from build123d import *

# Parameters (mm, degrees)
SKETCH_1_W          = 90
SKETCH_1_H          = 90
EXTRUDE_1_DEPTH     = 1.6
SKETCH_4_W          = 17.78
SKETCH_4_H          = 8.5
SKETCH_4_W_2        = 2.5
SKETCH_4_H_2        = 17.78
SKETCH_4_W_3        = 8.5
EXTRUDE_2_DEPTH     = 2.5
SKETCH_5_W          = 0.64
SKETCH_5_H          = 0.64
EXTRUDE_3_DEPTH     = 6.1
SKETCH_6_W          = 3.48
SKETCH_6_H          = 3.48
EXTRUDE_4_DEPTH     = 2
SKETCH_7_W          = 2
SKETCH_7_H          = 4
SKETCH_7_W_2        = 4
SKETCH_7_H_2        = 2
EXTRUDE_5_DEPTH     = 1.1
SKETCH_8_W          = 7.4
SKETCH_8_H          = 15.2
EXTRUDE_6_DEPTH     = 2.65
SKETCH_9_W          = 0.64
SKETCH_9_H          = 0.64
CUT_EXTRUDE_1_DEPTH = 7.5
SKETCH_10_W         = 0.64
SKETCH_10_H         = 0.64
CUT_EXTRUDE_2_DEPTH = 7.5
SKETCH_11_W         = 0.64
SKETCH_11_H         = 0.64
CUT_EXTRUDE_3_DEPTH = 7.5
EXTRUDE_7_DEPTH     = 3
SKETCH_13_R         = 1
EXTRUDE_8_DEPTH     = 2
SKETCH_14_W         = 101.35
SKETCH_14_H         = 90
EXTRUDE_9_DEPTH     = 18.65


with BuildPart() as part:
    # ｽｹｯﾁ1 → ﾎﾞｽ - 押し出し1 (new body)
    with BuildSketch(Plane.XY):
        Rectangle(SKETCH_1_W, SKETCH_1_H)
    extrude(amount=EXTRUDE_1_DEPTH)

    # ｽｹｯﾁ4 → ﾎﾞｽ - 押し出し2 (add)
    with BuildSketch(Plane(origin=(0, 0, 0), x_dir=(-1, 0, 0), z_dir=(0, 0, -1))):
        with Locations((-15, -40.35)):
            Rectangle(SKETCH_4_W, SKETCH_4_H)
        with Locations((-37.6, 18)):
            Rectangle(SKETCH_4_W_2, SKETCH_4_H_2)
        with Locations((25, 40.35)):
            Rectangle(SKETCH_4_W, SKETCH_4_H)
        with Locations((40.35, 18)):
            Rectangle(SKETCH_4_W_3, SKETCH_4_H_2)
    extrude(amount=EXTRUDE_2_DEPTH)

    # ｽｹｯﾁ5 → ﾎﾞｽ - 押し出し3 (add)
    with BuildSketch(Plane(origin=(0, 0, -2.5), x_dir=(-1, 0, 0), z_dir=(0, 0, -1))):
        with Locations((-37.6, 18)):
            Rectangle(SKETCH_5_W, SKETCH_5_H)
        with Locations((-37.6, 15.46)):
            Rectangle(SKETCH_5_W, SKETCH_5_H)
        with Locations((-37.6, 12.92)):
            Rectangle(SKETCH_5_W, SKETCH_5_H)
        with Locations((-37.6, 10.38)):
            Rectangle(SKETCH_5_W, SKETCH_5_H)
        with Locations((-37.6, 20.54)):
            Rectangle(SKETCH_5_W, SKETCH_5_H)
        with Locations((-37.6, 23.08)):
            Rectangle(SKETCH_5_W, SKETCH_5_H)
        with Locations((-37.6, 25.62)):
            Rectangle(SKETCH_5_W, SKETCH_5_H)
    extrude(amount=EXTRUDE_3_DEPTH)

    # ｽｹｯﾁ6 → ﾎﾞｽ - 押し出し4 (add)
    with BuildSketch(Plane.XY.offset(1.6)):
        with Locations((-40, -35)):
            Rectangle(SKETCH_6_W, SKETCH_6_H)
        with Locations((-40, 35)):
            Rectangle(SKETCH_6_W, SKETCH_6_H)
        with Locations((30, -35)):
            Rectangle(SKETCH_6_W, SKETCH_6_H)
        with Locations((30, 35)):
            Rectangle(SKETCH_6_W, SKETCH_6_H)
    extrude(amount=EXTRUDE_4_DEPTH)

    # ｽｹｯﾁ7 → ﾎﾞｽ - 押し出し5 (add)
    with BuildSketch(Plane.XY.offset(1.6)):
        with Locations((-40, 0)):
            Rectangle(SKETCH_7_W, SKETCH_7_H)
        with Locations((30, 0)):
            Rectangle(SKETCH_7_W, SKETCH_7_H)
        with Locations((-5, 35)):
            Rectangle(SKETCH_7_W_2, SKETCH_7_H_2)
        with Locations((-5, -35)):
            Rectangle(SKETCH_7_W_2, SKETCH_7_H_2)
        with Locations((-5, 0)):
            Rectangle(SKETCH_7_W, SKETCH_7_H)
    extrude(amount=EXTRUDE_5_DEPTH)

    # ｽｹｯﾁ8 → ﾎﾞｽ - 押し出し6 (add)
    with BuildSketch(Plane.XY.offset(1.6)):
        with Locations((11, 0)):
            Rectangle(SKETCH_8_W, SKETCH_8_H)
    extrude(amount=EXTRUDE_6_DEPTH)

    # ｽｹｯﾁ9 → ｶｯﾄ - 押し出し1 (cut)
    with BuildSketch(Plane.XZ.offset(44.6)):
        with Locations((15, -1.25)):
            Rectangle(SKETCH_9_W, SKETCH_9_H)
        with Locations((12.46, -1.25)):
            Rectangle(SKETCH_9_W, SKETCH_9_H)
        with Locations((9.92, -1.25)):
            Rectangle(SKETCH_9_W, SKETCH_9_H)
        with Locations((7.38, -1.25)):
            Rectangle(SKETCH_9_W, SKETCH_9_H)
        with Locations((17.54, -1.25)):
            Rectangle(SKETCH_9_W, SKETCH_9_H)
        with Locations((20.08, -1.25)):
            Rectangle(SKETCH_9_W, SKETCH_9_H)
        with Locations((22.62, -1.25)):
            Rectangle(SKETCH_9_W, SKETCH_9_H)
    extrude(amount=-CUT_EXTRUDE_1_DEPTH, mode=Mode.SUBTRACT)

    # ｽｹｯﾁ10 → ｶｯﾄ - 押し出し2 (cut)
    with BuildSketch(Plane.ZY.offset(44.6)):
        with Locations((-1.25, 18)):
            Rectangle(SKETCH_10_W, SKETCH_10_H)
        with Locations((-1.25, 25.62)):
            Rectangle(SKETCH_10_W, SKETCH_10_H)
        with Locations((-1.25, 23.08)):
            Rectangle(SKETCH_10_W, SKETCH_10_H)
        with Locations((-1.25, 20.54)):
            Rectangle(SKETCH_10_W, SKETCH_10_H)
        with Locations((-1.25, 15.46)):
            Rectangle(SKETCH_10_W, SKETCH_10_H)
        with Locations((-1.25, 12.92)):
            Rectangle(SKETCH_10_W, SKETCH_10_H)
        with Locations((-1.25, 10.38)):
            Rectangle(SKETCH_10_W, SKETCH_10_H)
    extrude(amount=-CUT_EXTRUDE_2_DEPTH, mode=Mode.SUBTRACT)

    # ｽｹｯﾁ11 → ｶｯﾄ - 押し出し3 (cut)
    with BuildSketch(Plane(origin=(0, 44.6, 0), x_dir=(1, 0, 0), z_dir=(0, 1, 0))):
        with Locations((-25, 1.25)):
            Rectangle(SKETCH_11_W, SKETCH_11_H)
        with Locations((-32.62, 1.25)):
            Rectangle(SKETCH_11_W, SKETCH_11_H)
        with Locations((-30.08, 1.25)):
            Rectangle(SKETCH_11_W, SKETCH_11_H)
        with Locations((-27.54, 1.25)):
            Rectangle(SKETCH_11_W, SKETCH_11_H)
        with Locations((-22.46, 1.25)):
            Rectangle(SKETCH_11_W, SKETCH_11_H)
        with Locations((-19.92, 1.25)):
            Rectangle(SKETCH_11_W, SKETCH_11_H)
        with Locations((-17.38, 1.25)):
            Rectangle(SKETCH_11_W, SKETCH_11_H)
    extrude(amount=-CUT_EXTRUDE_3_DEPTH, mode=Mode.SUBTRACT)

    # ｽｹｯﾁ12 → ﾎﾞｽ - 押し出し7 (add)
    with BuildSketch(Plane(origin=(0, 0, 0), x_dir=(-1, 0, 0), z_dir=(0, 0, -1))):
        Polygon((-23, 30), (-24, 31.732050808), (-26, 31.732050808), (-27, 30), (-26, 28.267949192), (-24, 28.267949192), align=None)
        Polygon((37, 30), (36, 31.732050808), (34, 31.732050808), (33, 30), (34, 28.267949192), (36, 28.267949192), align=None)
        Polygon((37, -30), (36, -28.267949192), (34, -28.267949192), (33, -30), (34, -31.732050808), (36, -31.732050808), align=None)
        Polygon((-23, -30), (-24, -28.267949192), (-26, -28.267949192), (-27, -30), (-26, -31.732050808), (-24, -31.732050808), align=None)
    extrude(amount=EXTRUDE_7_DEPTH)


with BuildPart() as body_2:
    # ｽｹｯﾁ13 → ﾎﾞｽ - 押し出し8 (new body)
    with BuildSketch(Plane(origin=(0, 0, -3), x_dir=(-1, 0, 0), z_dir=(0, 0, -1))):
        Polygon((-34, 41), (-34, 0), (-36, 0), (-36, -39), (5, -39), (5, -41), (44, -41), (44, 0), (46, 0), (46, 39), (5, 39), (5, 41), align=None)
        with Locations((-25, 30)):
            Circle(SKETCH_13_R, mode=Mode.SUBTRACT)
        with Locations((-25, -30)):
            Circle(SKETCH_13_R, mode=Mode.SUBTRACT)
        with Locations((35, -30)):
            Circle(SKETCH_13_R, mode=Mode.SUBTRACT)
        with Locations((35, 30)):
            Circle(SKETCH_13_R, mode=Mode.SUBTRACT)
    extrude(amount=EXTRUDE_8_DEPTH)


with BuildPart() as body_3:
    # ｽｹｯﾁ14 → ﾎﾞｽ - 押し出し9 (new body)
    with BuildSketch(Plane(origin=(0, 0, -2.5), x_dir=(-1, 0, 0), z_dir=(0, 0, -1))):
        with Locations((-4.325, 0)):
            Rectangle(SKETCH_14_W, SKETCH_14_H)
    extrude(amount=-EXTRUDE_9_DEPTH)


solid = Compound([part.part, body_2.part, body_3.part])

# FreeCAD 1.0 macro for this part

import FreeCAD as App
import Part
import Sketcher
from FreeCAD import Vector
Q = App.Units.Quantity


def add_polygon(sketch, points):
    """Adds a closed chain of lines whose ends are joined by coincident constraints."""
    first, n = sketch.GeometryCount, len(points)
    for a, b in zip(points, points[1:] + points[:1]):
        sketch.addGeometry(Part.LineSegment(App.Vector(*a, 0), App.Vector(*b, 0)), False)
    for i in range(n):
        sketch.addConstraint(Sketcher.Constraint("Coincident", first + i, 2, first + (i + 1) % n, 1))

doc = App.newDocument("Part")
body = doc.addObject("PartDesign::Body", "Body")

# Sketch on XY plane
sketch1 = body.newObject("Sketcher::SketchObject", "Sketch")
sketch1.AttachmentSupport = (doc.getObject("XY_Plane"), [""])
sketch1.MapMode = "FlatFace"
add_polygon(sketch1, [(-45, 45), (-45, -45), (45, -45), (45, 45)])  # lines 0-3
sketch1.addConstraint(Sketcher.Constraint("Vertical", 0))
sketch1.addConstraint(Sketcher.Constraint("Horizontal", 1))
sketch1.addConstraint(Sketcher.Constraint("Vertical", 2))
sketch1.addConstraint(Sketcher.Constraint("Horizontal", 3))
sketch1.addConstraint(Sketcher.Constraint("Symmetric", 0, 2, 2, 2, -1, 1))
sketch1.addConstraint(Sketcher.Constraint("Equal", 3, 0))
sketch1.addConstraint(Sketcher.Constraint("DistanceX", 1, 1, 1, 2, 90.0))
pad1 = body.newObject("PartDesign::Pad", "Pad")
pad1.Profile = sketch1
pad1.Length = 1.6

# Sketch on XY plane
sketch2 = body.newObject("Sketcher::SketchObject", "Sketch001")
sketch2.AttachmentSupport = (doc.getObject("XY_Plane"), [""])
sketch2.MapMode = "FlatFace"
add_polygon(sketch2, [(23.9, -36.1), (23.9, -44.6), (6.1, -44.6), (6.1, -36.1)])  # lines 0-3
add_polygon(sketch2, [(38.9, 26.9), (38.9, 9.1), (36.4, 9.1), (36.4, 26.9)])  # lines 4-7
add_polygon(sketch2, [(-16.1, 44.6), (-16.1, 36.1), (-33.9, 36.1), (-33.9, 44.6)])  # lines 8-11
add_polygon(sketch2, [(-36.1, 26.9), (-36.1, 9.1), (-44.6, 9.1), (-44.6, 26.9)])  # lines 12-15
sketch2.addConstraint(Sketcher.Constraint("Vertical", 0))
sketch2.addConstraint(Sketcher.Constraint("Horizontal", 1))
sketch2.addConstraint(Sketcher.Constraint("Vertical", 2))
sketch2.addConstraint(Sketcher.Constraint("Horizontal", 3))
sketch2.addConstraint(Sketcher.Constraint("Vertical", 4))
sketch2.addConstraint(Sketcher.Constraint("Horizontal", 5))
sketch2.addConstraint(Sketcher.Constraint("Vertical", 6))
sketch2.addConstraint(Sketcher.Constraint("Horizontal", 7))
sketch2.addConstraint(Sketcher.Constraint("Vertical", 8))
sketch2.addConstraint(Sketcher.Constraint("Horizontal", 9))
sketch2.addConstraint(Sketcher.Constraint("Vertical", 10))
sketch2.addConstraint(Sketcher.Constraint("Horizontal", 11))
sketch2.addConstraint(Sketcher.Constraint("Vertical", 12))
sketch2.addConstraint(Sketcher.Constraint("Horizontal", 13))
sketch2.addConstraint(Sketcher.Constraint("Vertical", 14))
sketch2.addConstraint(Sketcher.Constraint("Horizontal", 15))
sketch2.addConstraint(Sketcher.Constraint("Horizontal", 5, 2, 12, 2))
sketch2.addConstraint(Sketcher.Constraint("Horizontal", 7, 2, 14, 2))
sketch2.addConstraint(Sketcher.Constraint("Equal", 3, 9))
sketch2.addConstraint(Sketcher.Constraint("Equal", 15, 0))
sketch2.addConstraint(Sketcher.Constraint("Equal", 11, 4))
sketch2.addConstraint(Sketcher.Constraint("Equal", 2, 8))
sketch2.addConstraint(Sketcher.Constraint("DistanceX", 5, 2, 5, 1, 2.5))
sketch2.addConstraint(Sketcher.Constraint("DistanceX", 13, 2, 13, 1, 8.5))
sketch2.addConstraint(Sketcher.Constraint("DistanceX", 1, 2, 1, 1, 17.78))
sketch2.addConstraint(Sketcher.Constraint("DistanceY", 0, 2, -1, 1, 44.6))
sketch2.addConstraint(Sketcher.Constraint("DistanceY", -1, 1, 8, 2, 36.1))
sketch2.addConstraint(Sketcher.Constraint("DistanceX", 12, 2, -1, 1, 36.1))
sketch2.addConstraint(Sketcher.Constraint("DistanceX", -1, 1, 0, 2, 23.89))
sketch2.addConstraint(Sketcher.Constraint("DistanceX", -1, 1, 4, 2, 38.85))
sketch2.addConstraint(Sketcher.Constraint("DistanceY", -1, 1, 4, 2, 9.11))
sketch2.addConstraint(Sketcher.Constraint("DistanceX", 8, 2, -1, 1, 16.11))
pad2 = body.newObject("PartDesign::Pad", "Pad001")
pad2.Profile = sketch2
pad2.Length = 2.5
pad2.Reversed = True

# Sketch on XY plane
sketch3 = body.newObject("Sketcher::SketchObject", "Sketch002")
sketch3.AttachmentSupport = (doc.getObject("XY_Plane"), [""])
sketch3.MapMode = "FlatFace"
sketch3.AttachmentOffset = App.Placement(Vector(0, 0, -2.5), App.Rotation())
add_polygon(sketch3, [(37.9, 18.3), (37.9, 17.7), (37.3, 17.7), (37.3, 18.3)])  # lines 0-3
add_polygon(sketch3, [(37.9, 15.8), (37.9, 15.1), (37.3, 15.1), (37.3, 15.8)])  # lines 4-7
add_polygon(sketch3, [(37.9, 13.2), (37.9, 12.6), (37.3, 12.6), (37.3, 13.2)])  # lines 8-11
add_polygon(sketch3, [(37.9, 10.7), (37.9, 10.1), (37.3, 10.1), (37.3, 10.7)])  # lines 12-15
add_polygon(sketch3, [(37.9, 20.9), (37.9, 20.2), (37.3, 20.2), (37.3, 20.9)])  # lines 16-19
add_polygon(sketch3, [(37.9, 23.4), (37.9, 22.8), (37.3, 22.8), (37.3, 23.4)])  # lines 20-23
add_polygon(sketch3, [(37.9, 25.9), (37.9, 25.3), (37.3, 25.3), (37.3, 25.9)])  # lines 24-27
sketch3.addConstraint(Sketcher.Constraint("Vertical", 0))
sketch3.addConstraint(Sketcher.Constraint("Horizontal", 1))
sketch3.addConstraint(Sketcher.Constraint("Vertical", 2))
sketch3.addConstraint(Sketcher.Constraint("Horizontal", 3))
sketch3.addConstraint(Sketcher.Constraint("Vertical", 4))
sketch3.addConstraint(Sketcher.Constraint("Horizontal", 5))
sketch3.addConstraint(Sketcher.Constraint("Vertical", 6))
sketch3.addConstraint(Sketcher.Constraint("Horizontal", 7))
sketch3.addConstraint(Sketcher.Constraint("Vertical", 8))
sketch3.addConstraint(Sketcher.Constraint("Horizontal", 9))
sketch3.addConstraint(Sketcher.Constraint("Vertical", 10))
sketch3.addConstraint(Sketcher.Constraint("Horizontal", 11))
sketch3.addConstraint(Sketcher.Constraint("Vertical", 12))
sketch3.addConstraint(Sketcher.Constraint("Horizontal", 13))
sketch3.addConstraint(Sketcher.Constraint("Vertical", 14))
sketch3.addConstraint(Sketcher.Constraint("Horizontal", 15))
sketch3.addConstraint(Sketcher.Constraint("Vertical", 16))
sketch3.addConstraint(Sketcher.Constraint("Horizontal", 17))
sketch3.addConstraint(Sketcher.Constraint("Vertical", 18))
sketch3.addConstraint(Sketcher.Constraint("Horizontal", 19))
sketch3.addConstraint(Sketcher.Constraint("Vertical", 20))
sketch3.addConstraint(Sketcher.Constraint("Horizontal", 21))
sketch3.addConstraint(Sketcher.Constraint("Vertical", 22))
sketch3.addConstraint(Sketcher.Constraint("Horizontal", 23))
sketch3.addConstraint(Sketcher.Constraint("Vertical", 24))
sketch3.addConstraint(Sketcher.Constraint("Horizontal", 25))
sketch3.addConstraint(Sketcher.Constraint("Vertical", 26))
sketch3.addConstraint(Sketcher.Constraint("Horizontal", 27))
sketch3.addConstraint(Sketcher.Constraint("Vertical", 3, 2, 4, 2))
sketch3.addConstraint(Sketcher.Constraint("Vertical", 2, 2, 5, 2))
sketch3.addConstraint(Sketcher.Constraint("Vertical", 7, 2, 8, 2))
sketch3.addConstraint(Sketcher.Constraint("Vertical", 6, 2, 9, 2))
sketch3.addConstraint(Sketcher.Constraint("Vertical", 11, 2, 12, 2))
sketch3.addConstraint(Sketcher.Constraint("Vertical", 10, 2, 13, 2))
sketch3.addConstraint(Sketcher.Constraint("Vertical", 15, 2, 16, 2))
sketch3.addConstraint(Sketcher.Constraint("Vertical", 14, 2, 17, 2))
sketch3.addConstraint(Sketcher.Constraint("Vertical", 19, 2, 20, 2))
sketch3.addConstraint(Sketcher.Constraint("Vertical", 18, 2, 21, 2))
sketch3.addConstraint(Sketcher.Constraint("Vertical", 23, 2, 24, 2))
sketch3.addConstraint(Sketcher.Constraint("Vertical", 22, 2, 25, 2))
sketch3.addConstraint(Sketcher.Constraint("Equal", 27, 0))
sketch3.addConstraint(Sketcher.Constraint("Equal", 2, 4))
sketch3.addConstraint(Sketcher.Constraint("Equal", 6, 8))
sketch3.addConstraint(Sketcher.Constraint("Equal", 10, 12))
sketch3.addConstraint(Sketcher.Constraint("Equal", 14, 16))
sketch3.addConstraint(Sketcher.Constraint("Equal", 18, 20))
sketch3.addConstraint(Sketcher.Constraint("Equal", 22, 24))
sketch3.addConstraint(Sketcher.Constraint("DistanceX", 1, 2, 1, 1, 0.64))
sketch3.addConstraint(Sketcher.Constraint("DistanceY", -1, 1, 8, 2, 12.6))
sketch3.addConstraint(Sketcher.Constraint("DistanceY", -1, 1, 14, 2, 10.7))
sketch3.addConstraint(Sketcher.Constraint("DistanceY", -1, 1, 22, 2, 23.4))
sketch3.addConstraint(Sketcher.Constraint("DistanceY", -1, 1, 24, 2, 25.3))
sketch3.addConstraint(Sketcher.Constraint("DistanceY", 6, 2, 1, 2, 1.9))
sketch3.addConstraint(Sketcher.Constraint("DistanceY", 10, 2, 5, 2, 1.9))
sketch3.addConstraint(Sketcher.Constraint("DistanceY", 3, 2, 16, 2, 1.9))
sketch3.addConstraint(Sketcher.Constraint("DistanceX", -1, 1, 0, 2, 37.92))
pad3 = body.newObject("PartDesign::Pad", "Pad002")
pad3.Profile = sketch3
pad3.Length = 6.1
pad3.Reversed = True

# Sketch on XY plane
sketch4 = body.newObject("Sketcher::SketchObject", "Sketch003")
sketch4.AttachmentSupport = (doc.getObject("XY_Plane"), [""])
sketch4.MapMode = "FlatFace"
sketch4.AttachmentOffset = App.Placement(Vector(0, 0, 1.6), App.Rotation())
add_polygon(sketch4, [(-41.7, -33.3), (-41.7, -36.7), (-38.3, -36.7), (-38.3, -33.3)])  # lines 0-3
add_polygon(sketch4, [(-41.7, 36.7), (-41.7, 33.3), (-38.3, 33.3), (-38.3, 36.7)])  # lines 4-7
add_polygon(sketch4, [(28.3, -33.3), (28.3, -36.7), (31.7, -36.7), (31.7, -33.3)])  # lines 8-11
add_polygon(sketch4, [(28.3, 36.7), (28.3, 33.3), (31.7, 33.3), (31.7, 36.7)])  # lines 12-15
sketch4.addConstraint(Sketcher.Constraint("Vertical", 0))
sketch4.addConstraint(Sketcher.Constraint("Horizontal", 1))
sketch4.addConstraint(Sketcher.Constraint("Vertical", 2))
sketch4.addConstraint(Sketcher.Constraint("Horizontal", 3))
sketch4.addConstraint(Sketcher.Constraint("Vertical", 4))
sketch4.addConstraint(Sketcher.Constraint("Horizontal", 5))
sketch4.addConstraint(Sketcher.Constraint("Vertical", 6))
sketch4.addConstraint(Sketcher.Constraint("Horizontal", 7))
sketch4.addConstraint(Sketcher.Constraint("Vertical", 8))
sketch4.addConstraint(Sketcher.Constraint("Horizontal", 9))
sketch4.addConstraint(Sketcher.Constraint("Vertical", 10))
sketch4.addConstraint(Sketcher.Constraint("Horizontal", 11))
sketch4.addConstraint(Sketcher.Constraint("Vertical", 12))
sketch4.addConstraint(Sketcher.Constraint("Horizontal", 13))
sketch4.addConstraint(Sketcher.Constraint("Vertical", 14))
sketch4.addConstraint(Sketcher.Constraint("Horizontal", 15))
sketch4.addConstraint(Sketcher.Constraint("Symmetric", 3, 2, 4, 2, -1))
sketch4.addConstraint(Sketcher.Constraint("Symmetric", 1, 2, 6, 2, -1))
sketch4.addConstraint(Sketcher.Constraint("Symmetric", 11, 2, 12, 2, -1))
sketch4.addConstraint(Sketcher.Constraint("Symmetric", 9, 2, 14, 2, -1))
sketch4.addConstraint(Sketcher.Constraint("Horizontal", 1, 2, 8, 2))
sketch4.addConstraint(Sketcher.Constraint("Horizontal", 3, 2, 10, 2))
sketch4.addConstraint(Sketcher.Constraint("Equal", 7, 9))
sketch4.addConstraint(Sketcher.Constraint("Equal", 15, 0))
sketch4.addConstraint(Sketcher.Constraint("DistanceY", 0, 2, 4, 2, 70.0))
sketch4.addConstraint(Sketcher.Constraint("DistanceX", 0, 2, 8, 2, 70.0))
sketch4.addConstraint(Sketcher.Constraint("DistanceX", 1, 1, 1, 2, 3.48))
sketch4.addConstraint(Sketcher.Constraint("DistanceX", 0, 2, -1, 1, 41.74))
pad4 = body.newObject("PartDesign::Pad", "Pad003")
pad4.Profile = sketch4
pad4.Length = 2

# Sketch on XY plane
sketch5 = body.newObject("Sketcher::SketchObject", "Sketch004")
sketch5.AttachmentSupport = (doc.getObject("XY_Plane"), [""])
sketch5.MapMode = "FlatFace"
sketch5.AttachmentOffset = App.Placement(Vector(0, 0, 1.6), App.Rotation())
add_polygon(sketch5, [(-41, 2), (-41, -2), (-39, -2), (-39, 2)])  # lines 0-3
add_polygon(sketch5, [(29, 2), (29, -2), (31, -2), (31, 2)])  # lines 4-7
add_polygon(sketch5, [(-7, 36), (-7, 34), (-3, 34), (-3, 36)])  # lines 8-11
add_polygon(sketch5, [(-7, -34), (-7, -36), (-3, -36), (-3, -34)])  # lines 12-15
add_polygon(sketch5, [(-6, 2), (-6, -2), (-4, -2), (-4, 2)])  # lines 16-19
sketch5.addConstraint(Sketcher.Constraint("Vertical", 0))
sketch5.addConstraint(Sketcher.Constraint("Horizontal", 1))
sketch5.addConstraint(Sketcher.Constraint("Vertical", 2))
sketch5.addConstraint(Sketcher.Constraint("Horizontal", 3))
sketch5.addConstraint(Sketcher.Constraint("Vertical", 4))
sketch5.addConstraint(Sketcher.Constraint("Horizontal", 5))
sketch5.addConstraint(Sketcher.Constraint("Vertical", 6))
sketch5.addConstraint(Sketcher.Constraint("Horizontal", 7))
sketch5.addConstraint(Sketcher.Constraint("Vertical", 8))
sketch5.addConstraint(Sketcher.Constraint("Horizontal", 9))
sketch5.addConstraint(Sketcher.Constraint("Vertical", 10))
sketch5.addConstraint(Sketcher.Constraint("Horizontal", 11))
sketch5.addConstraint(Sketcher.Constraint("Vertical", 12))
sketch5.addConstraint(Sketcher.Constraint("Horizontal", 13))
sketch5.addConstraint(Sketcher.Constraint("Vertical", 14))
sketch5.addConstraint(Sketcher.Constraint("Horizontal", 15))
sketch5.addConstraint(Sketcher.Constraint("Vertical", 16))
sketch5.addConstraint(Sketcher.Constraint("Horizontal", 17))
sketch5.addConstraint(Sketcher.Constraint("Vertical", 18))
sketch5.addConstraint(Sketcher.Constraint("Horizontal", 19))
sketch5.addConstraint(Sketcher.Constraint("Symmetric", 11, 2, 12, 2, -1))
sketch5.addConstraint(Sketcher.Constraint("Symmetric", 9, 2, 14, 2, -1))
sketch5.addConstraint(Sketcher.Constraint("Horizontal", 1, 2, 4, 2))
sketch5.addConstraint(Sketcher.Constraint("Horizontal", 3, 2, 6, 2))
sketch5.addConstraint(Sketcher.Constraint("Horizontal", 5, 2, 16, 2))
sketch5.addConstraint(Sketcher.Constraint("Horizontal", 7, 2, 18, 2))
sketch5.addConstraint(Sketcher.Constraint("Equal", 3, 5))
sketch5.addConstraint(Sketcher.Constraint("Equal", 7, 17))
sketch5.addConstraint(Sketcher.Constraint("Equal", 15, 0))
sketch5.addConstraint(Sketcher.Constraint("Equal", 19, 8))
sketch5.addConstraint(Sketcher.Constraint("DistanceX", 1, 1, 1, 2, 2.0))
sketch5.addConstraint(Sketcher.Constraint("DistanceX", 9, 1, 9, 2, 4.0))
sketch5.addConstraint(Sketcher.Constraint("DistanceX", 0, 2, -1, 1, 41.0))
sketch5.addConstraint(Sketcher.Constraint("DistanceY", 0, 2, -1, 1, 2.0))
sketch5.addConstraint(Sketcher.Constraint("DistanceX", -1, 1, 4, 2, 29.0))
sketch5.addConstraint(Sketcher.Constraint("DistanceX", 8, 2, -1, 1, 7.0))
sketch5.addConstraint(Sketcher.Constraint("DistanceY", -1, 1, 8, 2, 34.0))
sketch5.addConstraint(Sketcher.Constraint("DistanceX", 16, 2, -1, 1, 6.0))
pad5 = body.newObject("PartDesign::Pad", "Pad004")
pad5.Profile = sketch5
pad5.Length = 1.1

# Sketch on XY plane
sketch6 = body.newObject("Sketcher::SketchObject", "Sketch005")
sketch6.AttachmentSupport = (doc.getObject("XY_Plane"), [""])
sketch6.MapMode = "FlatFace"
sketch6.AttachmentOffset = App.Placement(Vector(0, 0, 1.6), App.Rotation())
add_polygon(sketch6, [(7, 8), (7, -8), (15, -8), (15, 8)])  # lines 0-3
sketch6.addConstraint(Sketcher.Constraint("Vertical", 0))
sketch6.addConstraint(Sketcher.Constraint("Horizontal", 1))
sketch6.addConstraint(Sketcher.Constraint("Vertical", 2))
sketch6.addConstraint(Sketcher.Constraint("Horizontal", 3))
sketch6.addConstraint(Sketcher.Constraint("DistanceX", 1, 1, 1, 2, 7.4))
sketch6.addConstraint(Sketcher.Constraint("DistanceY", 0, 2, 0, 1, 15.2))
sketch6.addConstraint(Sketcher.Constraint("DistanceX", -1, 1, 0, 2, 7.3))
sketch6.addConstraint(Sketcher.Constraint("DistanceY", 0, 2, -1, 1, 7.6))
pad6 = body.newObject("PartDesign::Pad", "Pad005")
pad6.Profile = sketch6
pad6.Length = 2.65

# Sketch on XZ plane
sketch7 = body.newObject("Sketcher::SketchObject", "Sketch006")
sketch7.AttachmentSupport = (doc.getObject("XZ_Plane"), [""])
sketch7.MapMode = "FlatFace"
sketch7.AttachmentOffset = App.Placement(Vector(0, 0, 44.6), App.Rotation())
add_polygon(sketch7, [(14.7, -0.9), (14.7, -1.6), (15.3, -1.6), (15.3, -0.9)])  # lines 0-3
add_polygon(sketch7, [(12.1, -0.9), (12.1, -1.6), (12.8, -1.6), (12.8, -0.9)])  # lines 4-7
add_polygon(sketch7, [(9.6, -0.9), (9.6, -1.6), (10.2, -1.6), (10.2, -0.9)])  # lines 8-11
add_polygon(sketch7, [(7.1, -0.9), (7.1, -1.6), (7.7, -1.6), (7.7, -0.9)])  # lines 12-15
add_polygon(sketch7, [(17.2, -0.9), (17.2, -1.6), (17.9, -1.6), (17.9, -0.9)])  # lines 16-19
add_polygon(sketch7, [(19.8, -0.9), (19.8, -1.6), (20.4, -1.6), (20.4, -0.9)])  # lines 20-23
add_polygon(sketch7, [(22.3, -0.9), (22.3, -1.6), (22.9, -1.6), (22.9, -0.9)])  # lines 24-27
sketch7.addConstraint(Sketcher.Constraint("Vertical", 0))
sketch7.addConstraint(Sketcher.Constraint("Horizontal", 1))
sketch7.addConstraint(Sketcher.Constraint("Vertical", 2))
sketch7.addConstraint(Sketcher.Constraint("Horizontal", 3))
sketch7.addConstraint(Sketcher.Constraint("Vertical", 4))
sketch7.addConstraint(Sketcher.Constraint("Horizontal", 5))
sketch7.addConstraint(Sketcher.Constraint("Vertical", 6))
sketch7.addConstraint(Sketcher.Constraint("Horizontal", 7))
sketch7.addConstraint(Sketcher.Constraint("Vertical", 8))
sketch7.addConstraint(Sketcher.Constraint("Horizontal", 9))
sketch7.addConstraint(Sketcher.Constraint("Vertical", 10))
sketch7.addConstraint(Sketcher.Constraint("Horizontal", 11))
sketch7.addConstraint(Sketcher.Constraint("Vertical", 12))
sketch7.addConstraint(Sketcher.Constraint("Horizontal", 13))
sketch7.addConstraint(Sketcher.Constraint("Vertical", 14))
sketch7.addConstraint(Sketcher.Constraint("Horizontal", 15))
sketch7.addConstraint(Sketcher.Constraint("Vertical", 16))
sketch7.addConstraint(Sketcher.Constraint("Horizontal", 17))
sketch7.addConstraint(Sketcher.Constraint("Vertical", 18))
sketch7.addConstraint(Sketcher.Constraint("Horizontal", 19))
sketch7.addConstraint(Sketcher.Constraint("Vertical", 20))
sketch7.addConstraint(Sketcher.Constraint("Horizontal", 21))
sketch7.addConstraint(Sketcher.Constraint("Vertical", 22))
sketch7.addConstraint(Sketcher.Constraint("Horizontal", 23))
sketch7.addConstraint(Sketcher.Constraint("Vertical", 24))
sketch7.addConstraint(Sketcher.Constraint("Horizontal", 25))
sketch7.addConstraint(Sketcher.Constraint("Vertical", 26))
sketch7.addConstraint(Sketcher.Constraint("Horizontal", 27))
sketch7.addConstraint(Sketcher.Constraint("Horizontal", 1, 2, 4, 2))
sketch7.addConstraint(Sketcher.Constraint("Horizontal", 3, 2, 6, 2))
sketch7.addConstraint(Sketcher.Constraint("Horizontal", 5, 2, 8, 2))
sketch7.addConstraint(Sketcher.Constraint("Horizontal", 7, 2, 10, 2))
sketch7.addConstraint(Sketcher.Constraint("Horizontal", 9, 2, 12, 2))
sketch7.addConstraint(Sketcher.Constraint("Horizontal", 11, 2, 14, 2))
sketch7.addConstraint(Sketcher.Constraint("Horizontal", 13, 2, 16, 2))
sketch7.addConstraint(Sketcher.Constraint("Horizontal", 15, 2, 18, 2))
sketch7.addConstraint(Sketcher.Constraint("Horizontal", 17, 2, 20, 2))
sketch7.addConstraint(Sketcher.Constraint("Horizontal", 19, 2, 22, 2))
sketch7.addConstraint(Sketcher.Constraint("Horizontal", 21, 2, 24, 2))
sketch7.addConstraint(Sketcher.Constraint("Horizontal", 23, 2, 26, 2))
sketch7.addConstraint(Sketcher.Constraint("Equal", 3, 5))
sketch7.addConstraint(Sketcher.Constraint("Equal", 7, 9))
sketch7.addConstraint(Sketcher.Constraint("Equal", 11, 13))
sketch7.addConstraint(Sketcher.Constraint("Equal", 15, 17))
sketch7.addConstraint(Sketcher.Constraint("Equal", 19, 21))
sketch7.addConstraint(Sketcher.Constraint("Equal", 23, 25))
sketch7.addConstraint(Sketcher.Constraint("Equal", 27, 0))
sketch7.addConstraint(Sketcher.Constraint("DistanceX", 1, 1, 1, 2, 0.64))
sketch7.addConstraint(Sketcher.Constraint("DistanceX", -1, 1, 8, 2, 9.6))
sketch7.addConstraint(Sketcher.Constraint("DistanceX", -1, 1, 13, 2, 7.7))
sketch7.addConstraint(Sketcher.Constraint("DistanceX", -1, 1, 21, 2, 20.4))
sketch7.addConstraint(Sketcher.Constraint("DistanceX", -1, 1, 24, 2, 22.3))
sketch7.addConstraint(Sketcher.Constraint("DistanceX", 5, 2, 0, 2, 1.9))
sketch7.addConstraint(Sketcher.Constraint("DistanceX", 9, 2, 4, 2, 1.9))
sketch7.addConstraint(Sketcher.Constraint("DistanceX", 1, 2, 16, 2, 1.9))
sketch7.addConstraint(Sketcher.Constraint("DistanceY", 0, 2, -1, 1, 1.57))
pocket1 = body.newObject("PartDesign::Pocket", "Pocket")
pocket1.Profile = sketch7
pocket1.Length = 7.5

# Sketch on YZ plane
sketch8 = body.newObject("Sketcher::SketchObject", "Sketch007")
sketch8.AttachmentSupport = (doc.getObject("YZ_Plane"), [""])
sketch8.MapMode = "FlatFace"
sketch8.AttachmentOffset = App.Placement(Vector(0, 0, -44.6), App.Rotation())
add_polygon(sketch8, [(18.3, -1.6), (17.7, -1.6), (17.7, -0.9), (18.3, -0.9)])  # lines 0-3
add_polygon(sketch8, [(25.9, -1.6), (25.3, -1.6), (25.3, -0.9), (25.9, -0.9)])  # lines 4-7
add_polygon(sketch8, [(23.4, -1.6), (22.8, -1.6), (22.8, -0.9), (23.4, -0.9)])  # lines 8-11
add_polygon(sketch8, [(20.9, -1.6), (20.2, -1.6), (20.2, -0.9), (20.9, -0.9)])  # lines 12-15
add_polygon(sketch8, [(15.8, -1.6), (15.1, -1.6), (15.1, -0.9), (15.8, -0.9)])  # lines 16-19
add_polygon(sketch8, [(13.2, -1.6), (12.6, -1.6), (12.6, -0.9), (13.2, -0.9)])  # lines 20-23
add_polygon(sketch8, [(10.7, -1.6), (10.1, -1.6), (10.1, -0.9), (10.7, -0.9)])  # lines 24-27
sketch8.addConstraint(Sketcher.Constraint("Horizontal", 0))
sketch8.addConstraint(Sketcher.Constraint("Vertical", 1))
sketch8.addConstraint(Sketcher.Constraint("Horizontal", 2))
sketch8.addConstraint(Sketcher.Constraint("Vertical", 3))
sketch8.addConstraint(Sketcher.Constraint("Horizontal", 4))
sketch8.addConstraint(Sketcher.Constraint("Vertical", 5))
sketch8.addConstraint(Sketcher.Constraint("Horizontal", 6))
sketch8.addConstraint(Sketcher.Constraint("Vertical", 7))
sketch8.addConstraint(Sketcher.Constraint("Horizontal", 8))
sketch8.addConstraint(Sketcher.Constraint("Vertical", 9))
sketch8.addConstraint(Sketcher.Constraint("Horizontal", 10))
sketch8.addConstraint(Sketcher.Constraint("Vertical", 11))
sketch8.addConstraint(Sketcher.Constraint("Horizontal", 12))
sketch8.addConstraint(Sketcher.Constraint("Vertical", 13))
sketch8.addConstraint(Sketcher.Constraint("Horizontal", 14))
sketch8.addConstraint(Sketcher.Constraint("Vertical", 15))
sketch8.addConstraint(Sketcher.Constraint("Horizontal", 16))
sketch8.addConstraint(Sketcher.Constraint("Vertical", 17))
sketch8.addConstraint(Sketcher.Constraint("Horizontal", 18))
sketch8.addConstraint(Sketcher.Constraint("Vertical", 19))
sketch8.addConstraint(Sketcher.Constraint("Horizontal", 20))
sketch8.addConstraint(Sketcher.Constraint("Vertical", 21))
sketch8.addConstraint(Sketcher.Constraint("Horizontal", 22))
sketch8.addConstraint(Sketcher.Constraint("Vertical", 23))
sketch8.addConstraint(Sketcher.Constraint("Horizontal", 24))
sketch8.addConstraint(Sketcher.Constraint("Vertical", 25))
sketch8.addConstraint(Sketcher.Constraint("Horizontal", 26))
sketch8.addConstraint(Sketcher.Constraint("Vertical", 27))
sketch8.addConstraint(Sketcher.Constraint("Horizontal", 3, 2, 4, 2))
sketch8.addConstraint(Sketcher.Constraint("Horizontal", 2, 2, 5, 2))
sketch8.addConstraint(Sketcher.Constraint("Horizontal", 7, 2, 8, 2))
sketch8.addConstraint(Sketcher.Constraint("Horizontal", 6, 2, 9, 2))
sketch8.addConstraint(Sketcher.Constraint("Horizontal", 11, 2, 12, 2))
sketch8.addConstraint(Sketcher.Constraint("Horizontal", 10, 2, 13, 2))
sketch8.addConstraint(Sketcher.Constraint("Horizontal", 15, 2, 16, 2))
sketch8.addConstraint(Sketcher.Constraint("Horizontal", 14, 2, 17, 2))
sketch8.addConstraint(Sketcher.Constraint("Horizontal", 19, 2, 20, 2))
sketch8.addConstraint(Sketcher.Constraint("Horizontal", 18, 2, 21, 2))
sketch8.addConstraint(Sketcher.Constraint("Horizontal", 23, 2, 24, 2))
sketch8.addConstraint(Sketcher.Constraint("Horizontal", 22, 2, 25, 2))
sketch8.addConstraint(Sketcher.Constraint("Equal", 2, 4))
sketch8.addConstraint(Sketcher.Constraint("Equal", 6, 8))
sketch8.addConstraint(Sketcher.Constraint("Equal", 10, 12))
sketch8.addConstraint(Sketcher.Constraint("Equal", 14, 16))
sketch8.addConstraint(Sketcher.Constraint("Equal", 18, 20))
sketch8.addConstraint(Sketcher.Constraint("Equal", 22, 24))
sketch8.addConstraint(Sketcher.Constraint("Equal", 26, 1))
sketch8.addConstraint(Sketcher.Constraint("DistanceX", 0, 2, 0, 1, 0.64))
sketch8.addConstraint(Sketcher.Constraint("DistanceX", -1, 1, 4, 2, 25.3))
sketch8.addConstraint(Sketcher.Constraint("DistanceX", -1, 1, 10, 2, 23.4))
sketch8.addConstraint(Sketcher.Constraint("DistanceX", -1, 1, 20, 2, 12.6))
sketch8.addConstraint(Sketcher.Constraint("DistanceX", -1, 1, 26, 2, 10.7))
sketch8.addConstraint(Sketcher.Constraint("DistanceX", 3, 2, 12, 2, 1.9))
sketch8.addConstraint(Sketcher.Constraint("DistanceX", 14, 2, 9, 2, 1.9))
sketch8.addConstraint(Sketcher.Constraint("DistanceX", 18, 2, 1, 2, 1.9))
sketch8.addConstraint(Sketcher.Constraint("DistanceY", 0, 2, -1, 1, 1.57))
pocket2 = body.newObject("PartDesign::Pocket", "Pocket001")
pocket2.Profile = sketch8
pocket2.Length = 7.5
pocket2.Reversed = True

# Sketch on XZ plane
sketch9 = body.newObject("Sketcher::SketchObject", "Sketch008")
sketch9.AttachmentSupport = (doc.getObject("XZ_Plane"), [""])
sketch9.MapMode = "FlatFace"
sketch9.AttachmentOffset = App.Placement(Vector(0, 0, -44.6), App.Rotation())
add_polygon(sketch9, [(-25.3, -1.6), (-25.3, -0.9), (-24.7, -0.9), (-24.7, -1.6)])  # lines 0-3
add_polygon(sketch9, [(-32.9, -1.6), (-32.9, -0.9), (-32.3, -0.9), (-32.3, -1.6)])  # lines 4-7
add_polygon(sketch9, [(-30.4, -1.6), (-30.4, -0.9), (-29.8, -0.9), (-29.8, -1.6)])  # lines 8-11
add_polygon(sketch9, [(-27.9, -1.6), (-27.9, -0.9), (-27.2, -0.9), (-27.2, -1.6)])  # lines 12-15
add_polygon(sketch9, [(-22.8, -1.6), (-22.8, -0.9), (-22.1, -0.9), (-22.1, -1.6)])  # lines 16-19
add_polygon(sketch9, [(-20.2, -1.6), (-20.2, -0.9), (-19.6, -0.9), (-19.6, -1.6)])  # lines 20-23
add_polygon(sketch9, [(-17.7, -1.6), (-17.7, -0.9), (-17.1, -0.9), (-17.1, -1.6)])  # lines 24-27
sketch9.addConstraint(Sketcher.Constraint("Vertical", 0))
sketch9.addConstraint(Sketcher.Constraint("Horizontal", 1))
sketch9.addConstraint(Sketcher.Constraint("Vertical", 2))
sketch9.addConstraint(Sketcher.Constraint("Horizontal", 3))
sketch9.addConstraint(Sketcher.Constraint("Vertical", 4))
sketch9.addConstraint(Sketcher.Constraint("Horizontal", 5))
sketch9.addConstraint(Sketcher.Constraint("Vertical", 6))
sketch9.addConstraint(Sketcher.Constraint("Horizontal", 7))
sketch9.addConstraint(Sketcher.Constraint("Vertical", 8))
sketch9.addConstraint(Sketcher.Constraint("Horizontal", 9))
sketch9.addConstraint(Sketcher.Constraint("Vertical", 10))
sketch9.addConstraint(Sketcher.Constraint("Horizontal", 11))
sketch9.addConstraint(Sketcher.Constraint("Vertical", 12))
sketch9.addConstraint(Sketcher.Constraint("Horizontal", 13))
sketch9.addConstraint(Sketcher.Constraint("Vertical", 14))
sketch9.addConstraint(Sketcher.Constraint("Horizontal", 15))
sketch9.addConstraint(Sketcher.Constraint("Vertical", 16))
sketch9.addConstraint(Sketcher.Constraint("Horizontal", 17))
sketch9.addConstraint(Sketcher.Constraint("Vertical", 18))
sketch9.addConstraint(Sketcher.Constraint("Horizontal", 19))
sketch9.addConstraint(Sketcher.Constraint("Vertical", 20))
sketch9.addConstraint(Sketcher.Constraint("Horizontal", 21))
sketch9.addConstraint(Sketcher.Constraint("Vertical", 22))
sketch9.addConstraint(Sketcher.Constraint("Horizontal", 23))
sketch9.addConstraint(Sketcher.Constraint("Vertical", 24))
sketch9.addConstraint(Sketcher.Constraint("Horizontal", 25))
sketch9.addConstraint(Sketcher.Constraint("Vertical", 26))
sketch9.addConstraint(Sketcher.Constraint("Horizontal", 27))
sketch9.addConstraint(Sketcher.Constraint("Horizontal", 1, 2, 4, 2))
sketch9.addConstraint(Sketcher.Constraint("Horizontal", 3, 2, 6, 2))
sketch9.addConstraint(Sketcher.Constraint("Horizontal", 5, 2, 8, 2))
sketch9.addConstraint(Sketcher.Constraint("Horizontal", 7, 2, 10, 2))
sketch9.addConstraint(Sketcher.Constraint("Horizontal", 9, 2, 12, 2))
sketch9.addConstraint(Sketcher.Constraint("Horizontal", 11, 2, 14, 2))
sketch9.addConstraint(Sketcher.Constraint("Horizontal", 13, 2, 16, 2))
sketch9.addConstraint(Sketcher.Constraint("Horizontal", 15, 2, 18, 2))
sketch9.addConstraint(Sketcher.Constraint("Horizontal", 17, 2, 20, 2))
sketch9.addConstraint(Sketcher.Constraint("Horizontal", 19, 2, 22, 2))
sketch9.addConstraint(Sketcher.Constraint("Horizontal", 21, 2, 24, 2))
sketch9.addConstraint(Sketcher.Constraint("Horizontal", 23, 2, 26, 2))
sketch9.addConstraint(Sketcher.Constraint("Equal", 3, 5))
sketch9.addConstraint(Sketcher.Constraint("Equal", 7, 9))
sketch9.addConstraint(Sketcher.Constraint("Equal", 11, 13))
sketch9.addConstraint(Sketcher.Constraint("Equal", 15, 17))
sketch9.addConstraint(Sketcher.Constraint("Equal", 19, 21))
sketch9.addConstraint(Sketcher.Constraint("Equal", 23, 25))
sketch9.addConstraint(Sketcher.Constraint("Equal", 27, 0))
sketch9.addConstraint(Sketcher.Constraint("DistanceX", 1, 1, 1, 2, 0.64))
sketch9.addConstraint(Sketcher.Constraint("DistanceX", 5, 2, -1, 1, 32.3))
sketch9.addConstraint(Sketcher.Constraint("DistanceX", 8, 2, -1, 1, 30.4))
sketch9.addConstraint(Sketcher.Constraint("DistanceX", 21, 2, -1, 1, 19.6))
sketch9.addConstraint(Sketcher.Constraint("DistanceX", 24, 2, -1, 1, 17.7))
sketch9.addConstraint(Sketcher.Constraint("DistanceX", 9, 2, 12, 2, 1.9))
sketch9.addConstraint(Sketcher.Constraint("DistanceX", 13, 2, 0, 2, 1.9))
sketch9.addConstraint(Sketcher.Constraint("DistanceX", 1, 2, 16, 2, 1.9))
sketch9.addConstraint(Sketcher.Constraint("DistanceY", 0, 2, -1, 1, 0.93))
pocket3 = body.newObject("PartDesign::Pocket", "Pocket002")
pocket3.Profile = sketch9
pocket3.Length = 7.5
pocket3.Reversed = True

# Sketch on XY plane
sketch10 = body.newObject("Sketcher::SketchObject", "Sketch009")
sketch10.AttachmentSupport = (doc.getObject("XY_Plane"), [""])
sketch10.MapMode = "FlatFace"
add_polygon(sketch10, [(23, 30), (24, 31.732051), (26, 31.732051), (27, 30), (26, 28.267949), (24, 28.267949)])  # lines 0-5
add_polygon(sketch10, [(-37, 30), (-36, 31.732051), (-34, 31.732051), (-33, 30), (-34, 28.267949), (-36, 28.267949)])  # lines 6-11
add_polygon(sketch10, [(-37, -30), (-36, -28.267949), (-34, -28.267949), (-33, -30), (-34, -31.732051), (-36, -31.732051)])  # lines 12-17
add_polygon(sketch10, [(23, -30), (24, -28.267949), (26, -28.267949), (27, -30), (26, -31.732051), (24, -31.732051)])  # lines 18-23
sketch10.addConstraint(Sketcher.Constraint("Horizontal", 1))
sketch10.addConstraint(Sketcher.Constraint("Horizontal", 4))
sketch10.addConstraint(Sketcher.Constraint("Horizontal", 7))
sketch10.addConstraint(Sketcher.Constraint("Horizontal", 10))
sketch10.addConstraint(Sketcher.Constraint("Horizontal", 13))
sketch10.addConstraint(Sketcher.Constraint("Horizontal", 16))
sketch10.addConstraint(Sketcher.Constraint("Horizontal", 19))
sketch10.addConstraint(Sketcher.Constraint("Horizontal", 22))
sketch10.addConstraint(Sketcher.Constraint("Symmetric", 10, 2, 12, 2, -1))
sketch10.addConstraint(Sketcher.Constraint("Symmetric", 8, 2, 14, 2, -1))
sketch10.addConstraint(Sketcher.Constraint("Symmetric", 7, 2, 15, 2, -1))
sketch10.addConstraint(Sketcher.Constraint("Symmetric", 11, 2, 17, 2, -1))
sketch10.addConstraint(Sketcher.Constraint("Symmetric", 4, 2, 18, 2, -1))
sketch10.addConstraint(Sketcher.Constraint("Symmetric", 2, 2, 20, 2, -1))
sketch10.addConstraint(Sketcher.Constraint("Symmetric", 1, 2, 21, 2, -1))
sketch10.addConstraint(Sketcher.Constraint("Symmetric", 5, 2, 23, 2, -1))
sketch10.addConstraint(Sketcher.Constraint("Parallel", 0, 3))
sketch10.addConstraint(Sketcher.Constraint("Parallel", 2, 5))
sketch10.addConstraint(Sketcher.Constraint("Parallel", 3, 6))
sketch10.addConstraint(Sketcher.Constraint("Parallel", 5, 8))
sketch10.addConstraint(Sketcher.Constraint("Parallel", 6, 9))
sketch10.addConstraint(Sketcher.Constraint("Parallel", 8, 11))
sketch10.addConstraint(Sketcher.Constraint("Parallel", 9, 12))
sketch10.addConstraint(Sketcher.Constraint("Parallel", 11, 14))
sketch10.addConstraint(Sketcher.Constraint("Parallel", 14, 17))
sketch10.addConstraint(Sketcher.Constraint("Parallel", 17, 20))
sketch10.addConstraint(Sketcher.Constraint("Parallel", 20, 23))
sketch10.addConstraint(Sketcher.Constraint("Horizontal", 2, 2, 5, 2))
sketch10.addConstraint(Sketcher.Constraint("Horizontal", 1, 2, 6, 2))
sketch10.addConstraint(Sketcher.Constraint("Horizontal", 5, 2, 8, 2))
sketch10.addConstraint(Sketcher.Constraint("Horizontal", 4, 2, 9, 2))
sketch10.addConstraint(Sketcher.Constraint("Horizontal", 8, 2, 11, 2))
sketch10.addConstraint(Sketcher.Constraint("Vertical", 1, 2, 3, 2))
sketch10.addConstraint(Sketcher.Constraint("Equal", 4, 7))
sketch10.addConstraint(Sketcher.Constraint("DistanceX", 1, 1, 1, 2, 2.0))
sketch10.addConstraint(Sketcher.Constraint("Angle", 0, Q("60 deg")))
sketch10.addConstraint(Sketcher.Constraint("Distance", 0, 2.0))
sketch10.addConstraint(Sketcher.Constraint("DistanceX", -1, 1, 0, 2, 24.0))
sketch10.addConstraint(Sketcher.Constraint("DistanceY", -1, 1, 2, 2, 30.0))
sketch10.addConstraint(Sketcher.Constraint("DistanceX", 6, 2, -1, 1, 36.0))
pad7 = body.newObject("PartDesign::Pad", "Pad006")
pad7.Profile = sketch10
pad7.Length = 3
pad7.Reversed = True
body2 = doc.addObject("PartDesign::Body", "Body001")

# Sketch on XY plane
sketch11 = body2.newObject("Sketcher::SketchObject", "Sketch010")
sketch11.AttachmentSupport = (doc.getObject("XY_Plane001"), [""])
sketch11.MapMode = "FlatFace"
sketch11.AttachmentOffset = App.Placement(Vector(0, 0, -3), App.Rotation())
add_polygon(sketch11, [(34, 41), (34, 0), (36, 0), (36, -39), (-5, -39), (-5, -41), (-44, -41), (-44, 0), (-46, 0), (-46, 39), (-5, 39), (-5, 41)])  # lines 0-11
sketch11.addGeometry(Part.Circle(Vector(25, -30, 0), Vector(0, 0, 1), 1), False)  # 12
sketch11.addGeometry(Part.Circle(Vector(-35, -30, 0), Vector(0, 0, 1), 1), False)  # 13
sketch11.addGeometry(Part.Circle(Vector(25, 30, 0), Vector(0, 0, 1), 1), False)  # 14
sketch11.addGeometry(Part.Circle(Vector(-35, 30, 0), Vector(0, 0, 1), 1), False)  # 15
sketch11.addConstraint(Sketcher.Constraint("Vertical", 0))
sketch11.addConstraint(Sketcher.Constraint("Horizontal", 1))
sketch11.addConstraint(Sketcher.Constraint("Vertical", 2))
sketch11.addConstraint(Sketcher.Constraint("Horizontal", 3))
sketch11.addConstraint(Sketcher.Constraint("Vertical", 4))
sketch11.addConstraint(Sketcher.Constraint("Horizontal", 5))
sketch11.addConstraint(Sketcher.Constraint("Vertical", 6))
sketch11.addConstraint(Sketcher.Constraint("Horizontal", 7))
sketch11.addConstraint(Sketcher.Constraint("Vertical", 8))
sketch11.addConstraint(Sketcher.Constraint("Horizontal", 9))
sketch11.addConstraint(Sketcher.Constraint("Vertical", 10))
sketch11.addConstraint(Sketcher.Constraint("Horizontal", 11))
sketch11.addConstraint(Sketcher.Constraint("Equal", 12, 13))
sketch11.addConstraint(Sketcher.Constraint("Equal", 13, 14))
sketch11.addConstraint(Sketcher.Constraint("Equal", 14, 15))
sketch11.addConstraint(Sketcher.Constraint("Symmetric", 12, 3, 14, 3, -1))
sketch11.addConstraint(Sketcher.Constraint("Symmetric", 13, 3, 15, 3, -1))
sketch11.addConstraint(Sketcher.Constraint("Symmetric", 3, 2, 9, 2, -1))
sketch11.addConstraint(Sketcher.Constraint("PointOnObject", 0, 2, -1))
sketch11.addConstraint(Sketcher.Constraint("PointOnObject", 6, 2, -1))
sketch11.addConstraint(Sketcher.Constraint("Horizontal", 12, 3, 13, 3))
sketch11.addConstraint(Sketcher.Constraint("Equal", 1, 7))
sketch11.addConstraint(Sketcher.Constraint("Equal", 3, 9))
sketch11.addConstraint(Sketcher.Constraint("Equal", 9, 0))
sketch11.addConstraint(Sketcher.Constraint("Equal", 11, 2))
sketch11.addConstraint(Sketcher.Constraint("Equal", 7, 4))
sketch11.addConstraint(Sketcher.Constraint("Diameter", 12, 2.0))
sketch11.addConstraint(Sketcher.Constraint("DistanceX", 1, 1, 1, 2, 2.0))
sketch11.addConstraint(Sketcher.Constraint("DistanceX", 3, 2, 3, 1, 41.0))
sketch11.addConstraint(Sketcher.Constraint("DistanceX", -1, 1, 12, 3, 25.0))
sketch11.addConstraint(Sketcher.Constraint("DistanceY", 12, 3, -1, 1, 30.0))
sketch11.addConstraint(Sketcher.Constraint("DistanceX", 13, 3, -1, 1, 35.0))
sketch11.addConstraint(Sketcher.Constraint("DistanceX", -1, 1, 0, 2, 34.0))
pad8 = body2.newObject("PartDesign::Pad", "Pad007")
pad8.Profile = sketch11
pad8.Length = 2
pad8.Reversed = True
body3 = doc.addObject("PartDesign::Body", "Body002")

# Sketch on XY plane
sketch12 = body3.newObject("Sketcher::SketchObject", "Sketch011")
sketch12.AttachmentSupport = (doc.getObject("XY_Plane002"), [""])
sketch12.MapMode = "FlatFace"
sketch12.AttachmentOffset = App.Placement(Vector(0, 0, -2.5), App.Rotation())
add_polygon(sketch12, [(55, 45), (55, -45), (-46, -45), (-46, 45)])  # lines 0-3
sketch12.addConstraint(Sketcher.Constraint("Vertical", 0))
sketch12.addConstraint(Sketcher.Constraint("Horizontal", 1))
sketch12.addConstraint(Sketcher.Constraint("Vertical", 2))
sketch12.addConstraint(Sketcher.Constraint("Horizontal", 3))
sketch12.addConstraint(Sketcher.Constraint("DistanceY", 0, 2, 0, 1, 90.0))
sketch12.addConstraint(Sketcher.Constraint("DistanceX", -1, 1, 0, 2, 55.0))
sketch12.addConstraint(Sketcher.Constraint("DistanceY", 0, 2, -1, 1, 45.0))
sketch12.addConstraint(Sketcher.Constraint("DistanceX", 1, 2, 1, 1, 101.35))
pad9 = body3.newObject("PartDesign::Pad", "Pad008")
pad9.Profile = sketch12
pad9.Length = 18.65

doc.recompute()
